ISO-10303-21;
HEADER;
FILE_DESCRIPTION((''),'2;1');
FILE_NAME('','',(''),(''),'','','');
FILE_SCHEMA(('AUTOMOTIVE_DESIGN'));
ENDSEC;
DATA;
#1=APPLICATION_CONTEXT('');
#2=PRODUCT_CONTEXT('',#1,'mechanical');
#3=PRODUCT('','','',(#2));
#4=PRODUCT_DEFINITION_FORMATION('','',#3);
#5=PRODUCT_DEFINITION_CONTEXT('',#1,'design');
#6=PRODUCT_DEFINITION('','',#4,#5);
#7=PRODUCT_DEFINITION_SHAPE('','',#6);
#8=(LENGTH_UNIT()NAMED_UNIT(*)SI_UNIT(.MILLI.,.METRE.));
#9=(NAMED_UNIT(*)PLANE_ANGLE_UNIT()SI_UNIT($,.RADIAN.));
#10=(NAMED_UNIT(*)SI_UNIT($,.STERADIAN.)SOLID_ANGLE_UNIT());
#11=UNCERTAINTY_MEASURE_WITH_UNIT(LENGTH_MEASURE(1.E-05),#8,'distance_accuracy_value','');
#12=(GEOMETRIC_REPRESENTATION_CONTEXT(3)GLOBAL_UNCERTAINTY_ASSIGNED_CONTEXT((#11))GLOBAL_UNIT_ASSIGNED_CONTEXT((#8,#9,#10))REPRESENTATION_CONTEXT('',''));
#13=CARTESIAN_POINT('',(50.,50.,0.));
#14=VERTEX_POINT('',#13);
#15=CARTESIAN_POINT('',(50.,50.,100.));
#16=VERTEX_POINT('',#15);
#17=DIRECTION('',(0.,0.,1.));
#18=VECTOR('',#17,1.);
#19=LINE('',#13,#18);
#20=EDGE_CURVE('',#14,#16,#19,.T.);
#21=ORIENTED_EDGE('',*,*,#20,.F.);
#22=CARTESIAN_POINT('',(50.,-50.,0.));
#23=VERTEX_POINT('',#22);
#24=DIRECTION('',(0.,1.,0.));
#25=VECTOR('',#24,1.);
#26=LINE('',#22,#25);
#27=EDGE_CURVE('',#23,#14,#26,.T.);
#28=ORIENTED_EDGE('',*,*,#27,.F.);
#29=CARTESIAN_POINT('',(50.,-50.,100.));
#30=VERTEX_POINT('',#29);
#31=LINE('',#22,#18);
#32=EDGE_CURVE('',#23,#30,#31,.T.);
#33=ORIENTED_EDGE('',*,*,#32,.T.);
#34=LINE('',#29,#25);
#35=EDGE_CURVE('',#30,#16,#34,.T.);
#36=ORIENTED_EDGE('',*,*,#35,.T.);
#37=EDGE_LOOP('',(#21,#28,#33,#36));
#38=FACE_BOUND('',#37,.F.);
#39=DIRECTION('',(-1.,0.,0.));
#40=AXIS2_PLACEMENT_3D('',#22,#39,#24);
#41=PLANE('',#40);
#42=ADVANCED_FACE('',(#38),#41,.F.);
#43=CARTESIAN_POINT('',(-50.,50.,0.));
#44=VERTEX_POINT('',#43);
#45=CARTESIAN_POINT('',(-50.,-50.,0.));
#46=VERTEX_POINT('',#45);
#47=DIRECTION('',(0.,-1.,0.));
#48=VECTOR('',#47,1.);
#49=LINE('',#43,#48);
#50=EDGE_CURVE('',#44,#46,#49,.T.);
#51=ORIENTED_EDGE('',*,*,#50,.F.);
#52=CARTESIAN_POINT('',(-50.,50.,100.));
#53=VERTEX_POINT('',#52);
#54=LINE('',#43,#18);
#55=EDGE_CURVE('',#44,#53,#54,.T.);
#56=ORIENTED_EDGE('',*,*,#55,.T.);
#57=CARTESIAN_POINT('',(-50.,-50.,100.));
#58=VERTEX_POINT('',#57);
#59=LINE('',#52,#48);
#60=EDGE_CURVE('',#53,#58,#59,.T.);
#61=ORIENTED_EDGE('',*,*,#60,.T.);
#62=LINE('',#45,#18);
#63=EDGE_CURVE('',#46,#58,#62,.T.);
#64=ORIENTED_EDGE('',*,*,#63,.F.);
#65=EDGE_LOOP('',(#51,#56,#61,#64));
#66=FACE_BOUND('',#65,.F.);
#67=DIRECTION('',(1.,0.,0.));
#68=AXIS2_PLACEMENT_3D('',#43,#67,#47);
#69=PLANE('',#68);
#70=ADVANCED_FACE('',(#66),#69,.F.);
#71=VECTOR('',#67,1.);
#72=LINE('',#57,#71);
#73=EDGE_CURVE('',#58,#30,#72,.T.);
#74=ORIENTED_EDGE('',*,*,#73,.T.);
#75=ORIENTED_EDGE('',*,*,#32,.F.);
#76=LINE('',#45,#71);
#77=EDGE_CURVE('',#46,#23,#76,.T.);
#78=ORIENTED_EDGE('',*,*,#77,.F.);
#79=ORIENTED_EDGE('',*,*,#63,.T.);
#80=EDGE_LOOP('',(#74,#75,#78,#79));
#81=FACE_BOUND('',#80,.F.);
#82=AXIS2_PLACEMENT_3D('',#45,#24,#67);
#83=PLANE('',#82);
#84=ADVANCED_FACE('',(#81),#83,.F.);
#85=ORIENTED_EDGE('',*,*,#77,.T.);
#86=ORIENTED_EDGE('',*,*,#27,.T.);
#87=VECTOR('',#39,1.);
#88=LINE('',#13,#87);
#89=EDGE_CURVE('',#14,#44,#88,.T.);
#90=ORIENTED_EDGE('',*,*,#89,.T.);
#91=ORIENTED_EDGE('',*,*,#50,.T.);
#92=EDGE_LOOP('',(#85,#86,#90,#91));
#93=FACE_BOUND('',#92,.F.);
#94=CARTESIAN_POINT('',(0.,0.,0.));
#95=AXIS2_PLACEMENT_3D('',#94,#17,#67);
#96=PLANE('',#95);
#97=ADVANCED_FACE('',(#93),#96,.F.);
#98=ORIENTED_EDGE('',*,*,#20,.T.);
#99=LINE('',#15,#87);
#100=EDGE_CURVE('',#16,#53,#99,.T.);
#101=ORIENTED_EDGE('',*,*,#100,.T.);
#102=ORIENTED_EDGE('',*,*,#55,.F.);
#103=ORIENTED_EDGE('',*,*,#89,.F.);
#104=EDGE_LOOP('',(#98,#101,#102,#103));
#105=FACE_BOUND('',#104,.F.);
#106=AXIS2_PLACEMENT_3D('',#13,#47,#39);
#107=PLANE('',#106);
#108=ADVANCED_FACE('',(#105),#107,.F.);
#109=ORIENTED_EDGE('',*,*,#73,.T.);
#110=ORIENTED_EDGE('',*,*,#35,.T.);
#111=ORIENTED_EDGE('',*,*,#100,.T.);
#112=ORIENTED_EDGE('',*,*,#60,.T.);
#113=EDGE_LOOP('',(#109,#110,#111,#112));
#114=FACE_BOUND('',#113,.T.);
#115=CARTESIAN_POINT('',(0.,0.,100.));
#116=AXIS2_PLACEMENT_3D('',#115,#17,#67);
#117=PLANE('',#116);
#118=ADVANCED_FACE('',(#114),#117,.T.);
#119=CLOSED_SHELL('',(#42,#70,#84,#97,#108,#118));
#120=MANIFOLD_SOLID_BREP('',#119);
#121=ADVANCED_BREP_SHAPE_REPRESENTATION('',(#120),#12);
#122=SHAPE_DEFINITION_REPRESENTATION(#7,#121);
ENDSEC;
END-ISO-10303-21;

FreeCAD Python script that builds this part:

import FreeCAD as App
import Part
import Sketcher
from FreeCAD import Vector
Q = App.Units.Quantity


def add_polygon(sketch, points):
    """Adds a closed chain of lines whose ends are joined by coincident constraints."""
    first, n = sketch.GeometryCount, len(points)
    for a, b in zip(points, points[1:] + points[:1]):
        sketch.addGeometry(Part.LineSegment(App.Vector(*a, 0), App.Vector(*b, 0)), False)
    for i in range(n):
        sketch.addConstraint(Sketcher.Constraint("Coincident", first + i, 2, first + (i + 1) % n, 1))

doc = App.newDocument("Part")
params = doc.addObject("Spreadsheet::Sheet", "Params")
for row, (alias, value) in enumerate([
    ("sketch1_width", "3.937 in"),
    ("pad1_length", "3.9370079 in"),
], start=1):
    params.set(f"A{row}", alias)
    params.set(f"B{row}", "=" + value)
    params.setAlias(f"B{row}", alias)

body = doc.addObject("PartDesign::Body", "Body")

sketch1 = doc.addObject("Sketcher::SketchObject", "Sketch")
body.addObject(sketch1)
sketch1.AttachmentSupport = (doc.XY_Plane, [""])
sketch1.MapMode = "FlatFace"
add_polygon(sketch1, [(-50, 50), (-50, -50), (50, -50), (50, 50)])
sketch1.addConstraint(Sketcher.Constraint("Vertical", 0))
sketch1.addConstraint(Sketcher.Constraint("Horizontal", 1))
sketch1.addConstraint(Sketcher.Constraint("Vertical", 2))
sketch1.addConstraint(Sketcher.Constraint("Horizontal", 3))
sketch1.addConstraint(Sketcher.Constraint("Symmetric", 0, 2, 2, 2, -1, 1))
sketch1.addConstraint(Sketcher.Constraint("Equal", 3, 0))
sketch1.addConstraint(Sketcher.Constraint("DistanceX", 1, 1, 1, 2, Q("3.937 in")))
sketch1.setExpression("Constraints[10]", "Params.sketch1_width")
pad1 = doc.addObject("PartDesign::Pad", "Pad")
body.addObject(pad1)
pad1.Profile = sketch1
pad1.setExpression("Length", "Params.pad1_length")

doc.recompute()
